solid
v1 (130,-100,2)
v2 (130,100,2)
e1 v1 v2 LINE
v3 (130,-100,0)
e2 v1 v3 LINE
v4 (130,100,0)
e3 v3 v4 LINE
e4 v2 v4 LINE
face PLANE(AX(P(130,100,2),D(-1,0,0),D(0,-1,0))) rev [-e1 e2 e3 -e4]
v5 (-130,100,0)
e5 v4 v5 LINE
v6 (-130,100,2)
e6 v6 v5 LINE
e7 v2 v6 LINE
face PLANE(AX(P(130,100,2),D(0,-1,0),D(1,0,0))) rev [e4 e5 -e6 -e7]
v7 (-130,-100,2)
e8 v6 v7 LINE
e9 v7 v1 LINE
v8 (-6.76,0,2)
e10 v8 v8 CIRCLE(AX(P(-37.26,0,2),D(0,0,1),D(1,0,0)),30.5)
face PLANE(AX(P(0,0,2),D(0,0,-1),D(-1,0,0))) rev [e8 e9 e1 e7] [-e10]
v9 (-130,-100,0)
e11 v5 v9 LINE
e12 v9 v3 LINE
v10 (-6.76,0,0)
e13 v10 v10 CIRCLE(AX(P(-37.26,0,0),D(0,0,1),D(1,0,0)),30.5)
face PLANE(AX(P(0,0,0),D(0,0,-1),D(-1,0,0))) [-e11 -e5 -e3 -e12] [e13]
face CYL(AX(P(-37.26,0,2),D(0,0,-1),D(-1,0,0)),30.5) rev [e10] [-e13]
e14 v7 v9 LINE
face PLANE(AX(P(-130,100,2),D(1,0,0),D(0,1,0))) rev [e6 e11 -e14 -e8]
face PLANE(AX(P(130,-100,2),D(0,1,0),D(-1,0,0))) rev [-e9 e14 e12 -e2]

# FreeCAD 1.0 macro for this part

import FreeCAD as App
import Part
import Sketcher
from FreeCAD import Vector

doc = App.newDocument("Part")
body = doc.addObject("PartDesign::Body", "Body")

# Sketch on XY plane
sketch1 = body.newObject("Sketcher::SketchObject", "Sketch")
sketch1.AttachmentSupport = (doc.getObject("XY_Plane"), [""])
sketch1.MapMode = "FlatFace"
sketch1.addGeometry(Part.LineSegment(Vector(-130, 100, 0), Vector(-130, -100, 0)), False)
sketch1.addGeometry(Part.LineSegment(Vector(-130, -100, 0), Vector(130, -100, 0)), False)
sketch1.addGeometry(Part.LineSegment(Vector(130, -100, 0), Vector(130, 100, 0)), False)
sketch1.addGeometry(Part.LineSegment(Vector(130, 100, 0), Vector(-130, 100, 0)), False)
sketch1.addGeometry(Part.Circle(Vector(-37, 0, 0), Vector(0, 0, 1), 30), False)
sketch1.addConstraint(Sketcher.Constraint("Coincident", 0, 2, 1, 1))
sketch1.addConstraint(Sketcher.Constraint("Coincident", 1, 2, 2, 1))
sketch1.addConstraint(Sketcher.Constraint("Coincident", 2, 2, 3, 1))
sketch1.addConstraint(Sketcher.Constraint("Coincident", 3, 2, 0, 1))
sketch1.addConstraint(Sketcher.Constraint("Vertical", 0))
sketch1.addConstraint(Sketcher.Constraint("Horizontal", 1))
sketch1.addConstraint(Sketcher.Constraint("Vertical", 2))
sketch1.addConstraint(Sketcher.Constraint("Horizontal", 3))
sketch1.addConstraint(Sketcher.Constraint("Symmetric", 0, 2, 2, 2, -1, 1))
sketch1.addConstraint(Sketcher.Constraint("PointOnObject", 4, 3, -1))
sketch1.addConstraint(Sketcher.Constraint("Diameter", 4, 61.0))
sketch1.addConstraint(Sketcher.Constraint("DistanceX", 1, 1, 1, 2, 260.0))
sketch1.addConstraint(Sketcher.Constraint("DistanceY", 0, 2, 0, 1, 200.0))
sketch1.addConstraint(Sketcher.Constraint("DistanceX", 4, 3, -1, 1, 37.26))
pad1 = body.newObject("PartDesign::Pad", "Pad")
pad1.Profile = sketch1
pad1.Length = 2

doc.recompute()
